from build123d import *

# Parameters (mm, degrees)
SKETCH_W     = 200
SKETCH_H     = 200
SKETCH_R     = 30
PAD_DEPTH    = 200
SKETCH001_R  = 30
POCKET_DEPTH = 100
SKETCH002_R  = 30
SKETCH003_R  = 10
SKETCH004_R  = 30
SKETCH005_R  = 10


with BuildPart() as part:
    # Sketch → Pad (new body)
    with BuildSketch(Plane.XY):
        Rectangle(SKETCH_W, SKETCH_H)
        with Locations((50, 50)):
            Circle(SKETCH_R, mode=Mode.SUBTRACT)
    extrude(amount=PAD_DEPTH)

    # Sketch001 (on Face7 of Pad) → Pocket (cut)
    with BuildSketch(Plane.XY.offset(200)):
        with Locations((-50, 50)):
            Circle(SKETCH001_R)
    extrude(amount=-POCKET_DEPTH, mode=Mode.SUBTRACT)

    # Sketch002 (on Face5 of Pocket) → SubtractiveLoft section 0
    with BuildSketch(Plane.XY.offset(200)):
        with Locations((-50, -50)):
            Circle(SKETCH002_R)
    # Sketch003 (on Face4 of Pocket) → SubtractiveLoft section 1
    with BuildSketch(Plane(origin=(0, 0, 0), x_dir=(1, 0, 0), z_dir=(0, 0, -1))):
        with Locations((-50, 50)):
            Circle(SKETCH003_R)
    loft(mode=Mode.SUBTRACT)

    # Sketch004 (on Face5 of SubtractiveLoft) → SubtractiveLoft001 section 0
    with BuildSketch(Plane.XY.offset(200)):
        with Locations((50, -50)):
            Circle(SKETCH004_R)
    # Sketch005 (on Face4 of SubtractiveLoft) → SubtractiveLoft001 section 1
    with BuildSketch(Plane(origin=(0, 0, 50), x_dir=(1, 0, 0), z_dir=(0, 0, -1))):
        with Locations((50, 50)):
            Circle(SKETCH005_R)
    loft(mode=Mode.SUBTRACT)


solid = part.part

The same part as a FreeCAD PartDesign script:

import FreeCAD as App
import Part
import Sketcher

V = App.Vector

doc = App.newDocument("Part")
body = doc.addObject("PartDesign::Body", "Body")

# Sketch on XY plane
sketch1 = body.newObject("Sketcher::SketchObject", "Sketch")
sketch1.AttachmentSupport = (doc.getObject("XY_Plane"), [""])
sketch1.MapMode = "FlatFace"
sketch1.addGeometry([
    Part.LineSegment(V(-100, 100, 0), V(-100, -100, 0)),  # 0
    Part.LineSegment(V(-100, -100, 0), V(100, -100, 0)),  # 1
    Part.LineSegment(V(100, -100, 0), V(100, 100, 0)),  # 2
    Part.LineSegment(V(100, 100, 0), V(-100, 100, 0)),  # 3
    Part.Circle(V(50, 50, 0), V(0, 0, 1), 30),  # 4
], False)
sketch1.addConstraint([
    Sketcher.Constraint("Coincident", 0, 2, 1, 1),
    Sketcher.Constraint("Coincident", 1, 2, 2, 1),
    Sketcher.Constraint("Coincident", 2, 2, 3, 1),
    Sketcher.Constraint("Coincident", 3, 2, 0, 1),
    Sketcher.Constraint("Vertical", 0),
    Sketcher.Constraint("Horizontal", 1),
    Sketcher.Constraint("Vertical", 2),
    Sketcher.Constraint("Horizontal", 3),
    Sketcher.Constraint("Symmetric", 0, 2, 2, 2, -1, 1),
    Sketcher.Constraint("Equal", 3, 0),
    Sketcher.Constraint("Diameter", 4, 60.0),
    Sketcher.Constraint("DistanceX", 1, 1, 1, 2, 200.0),
    Sketcher.Constraint("DistanceX", -1, 1, 4, 3, 50.0),
    Sketcher.Constraint("DistanceY", -1, 1, 4, 3, 50.0),
])
pad1 = body.newObject("PartDesign::Pad", "Pad")
pad1.Profile = sketch1
pad1.Length = 200

# Sketch on XY plane
sketch2 = body.newObject("Sketcher::SketchObject", "Sketch001")
sketch2.AttachmentSupport = (doc.getObject("XY_Plane"), [""])
sketch2.MapMode = "FlatFace"
sketch2.AttachmentOffset = App.Placement(V(0, 0, 200), App.Rotation())
sketch2.addGeometry(Part.Circle(V(-50, 50, 0), V(0, 0, 1), 30), False)
sketch2.addConstraint([
    Sketcher.Constraint("Diameter", 0, 60.0),
    Sketcher.Constraint("DistanceX", 0, 3, -1, 1, 50.0),
    Sketcher.Constraint("DistanceY", -1, 1, 0, 3, 50.0),
])
pocket1 = body.newObject("PartDesign::Pocket", "Pocket")
pocket1.Profile = sketch2
pocket1.Length = 100

# Sketch on XY plane
sketch3 = body.newObject("Sketcher::SketchObject", "Sketch002")
sketch3.AttachmentSupport = (doc.getObject("XY_Plane"), [""])
sketch3.MapMode = "FlatFace"
sketch3.AttachmentOffset = App.Placement(V(0, 0, 200), App.Rotation())
sketch3.addGeometry(Part.Circle(V(-50, -50, 0), V(0, 0, 1), 30), False)
sketch3.addConstraint([
    Sketcher.Constraint("Diameter", 0, 60.0),
    Sketcher.Constraint("DistanceX", 0, 3, -1, 1, 50.0),
    Sketcher.Constraint("DistanceY", 0, 3, -1, 1, 50.0),
])

# Sketch on XY plane
sketch4 = body.newObject("Sketcher::SketchObject", "Sketch003")
sketch4.AttachmentSupport = (doc.getObject("XY_Plane"), [""])
sketch4.MapMode = "FlatFace"
sketch4.addGeometry(Part.Circle(V(-50, -50, 0), V(0, 0, 1), 10), False)
sketch4.addConstraint([
    Sketcher.Constraint("Diameter", 0, 20.0),
    Sketcher.Constraint("DistanceX", 0, 3, -1, 1, 50.0),
    Sketcher.Constraint("DistanceY", 0, 3, -1, 1, 50.0),
])

subtractiveloft = body.newObject("PartDesign::SubtractiveLoft", "SubtractiveLoft")
subtractiveloft.Profile = sketch3
subtractiveloft.Sections = [sketch4]

# Sketch on XY plane
sketch5 = body.newObject("Sketcher::SketchObject", "Sketch004")
sketch5.AttachmentSupport = (doc.getObject("XY_Plane"), [""])
sketch5.MapMode = "FlatFace"
sketch5.AttachmentOffset = App.Placement(V(0, 0, 200), App.Rotation())
sketch5.addGeometry(Part.Circle(V(50, -50, 0), V(0, 0, 1), 30), False)
sketch5.addConstraint([
    Sketcher.Constraint("Diameter", 0, 60.0),
    Sketcher.Constraint("DistanceX", -1, 1, 0, 3, 50.0),
    Sketcher.Constraint("DistanceY", 0, 3, -1, 1, 50.0),
])

# Sketch on XY plane
sketch6 = body.newObject("Sketcher::SketchObject", "Sketch005")
sketch6.AttachmentSupport = (doc.getObject("XY_Plane"), [""])
sketch6.MapMode = "FlatFace"
sketch6.AttachmentOffset = App.Placement(V(0, 0, 50), App.Rotation())
sketch6.addGeometry(Part.Circle(V(50, -50, 0), V(0, 0, 1), 10), False)
sketch6.addConstraint([
    Sketcher.Constraint("Diameter", 0, 20.0),
    Sketcher.Constraint("DistanceX", -1, 1, 0, 3, 50.0),
    Sketcher.Constraint("DistanceY", 0, 3, -1, 1, 50.0),
])

subtractiveloft2 = body.newObject("PartDesign::SubtractiveLoft", "SubtractiveLoft001")
subtractiveloft2.Profile = sketch5
subtractiveloft2.Sections = [sketch6]

doc.recompute()
